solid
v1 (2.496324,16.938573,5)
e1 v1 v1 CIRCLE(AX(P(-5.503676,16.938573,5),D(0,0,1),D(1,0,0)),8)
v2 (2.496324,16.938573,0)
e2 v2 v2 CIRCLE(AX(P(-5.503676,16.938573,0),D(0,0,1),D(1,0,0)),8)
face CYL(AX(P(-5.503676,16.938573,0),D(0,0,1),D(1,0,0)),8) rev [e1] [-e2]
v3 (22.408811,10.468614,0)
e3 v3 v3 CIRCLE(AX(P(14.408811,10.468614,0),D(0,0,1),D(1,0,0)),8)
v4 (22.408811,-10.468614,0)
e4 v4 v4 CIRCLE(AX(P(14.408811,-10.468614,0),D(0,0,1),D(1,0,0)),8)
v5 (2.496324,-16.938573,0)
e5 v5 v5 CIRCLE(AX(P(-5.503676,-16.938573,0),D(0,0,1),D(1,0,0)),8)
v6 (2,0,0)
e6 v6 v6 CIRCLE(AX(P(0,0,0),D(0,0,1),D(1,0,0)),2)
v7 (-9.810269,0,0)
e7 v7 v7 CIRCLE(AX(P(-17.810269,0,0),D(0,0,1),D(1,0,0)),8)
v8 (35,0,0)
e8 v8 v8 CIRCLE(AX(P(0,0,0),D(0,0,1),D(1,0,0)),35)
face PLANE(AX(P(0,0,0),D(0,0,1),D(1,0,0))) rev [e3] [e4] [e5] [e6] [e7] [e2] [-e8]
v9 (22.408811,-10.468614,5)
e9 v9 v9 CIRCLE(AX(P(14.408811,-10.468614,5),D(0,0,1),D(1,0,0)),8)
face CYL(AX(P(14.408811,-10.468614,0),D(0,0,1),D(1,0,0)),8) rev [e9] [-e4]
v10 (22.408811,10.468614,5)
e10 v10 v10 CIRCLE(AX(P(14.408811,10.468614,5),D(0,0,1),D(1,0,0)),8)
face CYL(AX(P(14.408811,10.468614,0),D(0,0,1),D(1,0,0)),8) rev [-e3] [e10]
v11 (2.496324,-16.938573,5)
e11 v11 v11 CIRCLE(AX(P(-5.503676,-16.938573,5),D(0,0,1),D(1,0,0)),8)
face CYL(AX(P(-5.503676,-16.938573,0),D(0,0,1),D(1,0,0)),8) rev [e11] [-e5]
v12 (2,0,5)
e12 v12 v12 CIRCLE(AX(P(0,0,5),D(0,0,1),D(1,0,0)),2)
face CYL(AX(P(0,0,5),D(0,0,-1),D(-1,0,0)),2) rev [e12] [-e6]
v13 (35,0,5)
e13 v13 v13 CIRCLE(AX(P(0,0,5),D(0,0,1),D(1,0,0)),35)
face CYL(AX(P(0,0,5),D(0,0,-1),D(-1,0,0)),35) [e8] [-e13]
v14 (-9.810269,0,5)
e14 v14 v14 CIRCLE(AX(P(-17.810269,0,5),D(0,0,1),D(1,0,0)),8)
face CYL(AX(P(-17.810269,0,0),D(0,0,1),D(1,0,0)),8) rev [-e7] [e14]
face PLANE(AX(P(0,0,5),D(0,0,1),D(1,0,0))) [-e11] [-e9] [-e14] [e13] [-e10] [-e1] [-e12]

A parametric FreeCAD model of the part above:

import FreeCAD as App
import Part
import Sketcher

V = App.Vector

doc = App.newDocument("Part")
body = doc.addObject("PartDesign::Body", "Body")

# Sketch on XY plane
sketch1 = body.newObject("Sketcher::SketchObject", "Sketch")
sketch1.AttachmentSupport = (doc.getObject("XY_Plane"), [""])
sketch1.MapMode = "FlatFace"
sketch1.addGeometry(Part.Circle(V(0, 0, 0), V(0, 0, 1), 35), False)
sketch1.addGeometry(Part.Circle(V(0, 0, 0), V(0, 0, 1), 2), False)
sketch1.addConstraint(Sketcher.Constraint("Coincident", 0, 3, -1, 1))
sketch1.addConstraint(Sketcher.Constraint("Coincident", 1, 3, -1, 1))
sketch1.addConstraint(Sketcher.Constraint("Diameter", 0, 70.0))
sketch1.addConstraint(Sketcher.Constraint("Diameter", 1, 4.0))
pad1 = body.newObject("PartDesign::Pad", "Pad")
pad1.Profile = sketch1
pad1.Length = 5

# Sketch on XY plane
sketch2 = body.newObject("Sketcher::SketchObject", "Sketch001")
sketch2.AttachmentSupport = (doc.getObject("XY_Plane"), [""])
sketch2.MapMode = "FlatFace"
sketch2.AttachmentOffset = App.Placement(V(0, 0, 5), App.Rotation())
sketch2.addGeometry(Part.Circle(V(-18, 0, 0), V(0, 0, 1), 8), False)
sketch2.addGeometry(Part.Circle(V(-6, 17, 0), V(0, 0, 1), 8), False)
sketch2.addGeometry(Part.Circle(V(14, 10, 0), V(0, 0, 1), 8), False)
sketch2.addGeometry(Part.Circle(V(14, -10, 0), V(0, 0, 1), 8), False)
sketch2.addGeometry(Part.Circle(V(-6, -17, 0), V(0, 0, 1), 8), False)
sketch2.addConstraint(Sketcher.Constraint("Equal", 0, 1))
sketch2.addConstraint(Sketcher.Constraint("Equal", 1, 2))
sketch2.addConstraint(Sketcher.Constraint("Equal", 2, 3))
sketch2.addConstraint(Sketcher.Constraint("Equal", 3, 4))
sketch2.addConstraint(Sketcher.Constraint("Symmetric", 2, 3, 3, 3, -1))
sketch2.addConstraint(Sketcher.Constraint("Symmetric", 1, 3, 4, 3, -1))
sketch2.addConstraint(Sketcher.Constraint("PointOnObject", 0, 3, -1))
sketch2.addConstraint(Sketcher.Constraint("Diameter", 0, 16.0))
sketch2.addConstraint(Sketcher.Constraint("DistanceX", 0, 3, -1, 1, 17.810269))
sketch2.addConstraint(Sketcher.Constraint("DistanceX", -1, 1, 2, 3, 14.408811))
sketch2.addConstraint(Sketcher.Constraint("DistanceY", 2, 3, 1, 3, 6.469959))
sketch2.addConstraint(Sketcher.Constraint("DistanceX", 1, 3, -1, 1, 5.503676))
sketch2.addConstraint(Sketcher.Constraint("DistanceY", -1, 1, 1, 3, 16.938573))
pocket1 = body.newObject("PartDesign::Pocket", "Pocket")
pocket1.Profile = sketch2
pocket1.Type = "ThroughAll"

doc.recompute()
